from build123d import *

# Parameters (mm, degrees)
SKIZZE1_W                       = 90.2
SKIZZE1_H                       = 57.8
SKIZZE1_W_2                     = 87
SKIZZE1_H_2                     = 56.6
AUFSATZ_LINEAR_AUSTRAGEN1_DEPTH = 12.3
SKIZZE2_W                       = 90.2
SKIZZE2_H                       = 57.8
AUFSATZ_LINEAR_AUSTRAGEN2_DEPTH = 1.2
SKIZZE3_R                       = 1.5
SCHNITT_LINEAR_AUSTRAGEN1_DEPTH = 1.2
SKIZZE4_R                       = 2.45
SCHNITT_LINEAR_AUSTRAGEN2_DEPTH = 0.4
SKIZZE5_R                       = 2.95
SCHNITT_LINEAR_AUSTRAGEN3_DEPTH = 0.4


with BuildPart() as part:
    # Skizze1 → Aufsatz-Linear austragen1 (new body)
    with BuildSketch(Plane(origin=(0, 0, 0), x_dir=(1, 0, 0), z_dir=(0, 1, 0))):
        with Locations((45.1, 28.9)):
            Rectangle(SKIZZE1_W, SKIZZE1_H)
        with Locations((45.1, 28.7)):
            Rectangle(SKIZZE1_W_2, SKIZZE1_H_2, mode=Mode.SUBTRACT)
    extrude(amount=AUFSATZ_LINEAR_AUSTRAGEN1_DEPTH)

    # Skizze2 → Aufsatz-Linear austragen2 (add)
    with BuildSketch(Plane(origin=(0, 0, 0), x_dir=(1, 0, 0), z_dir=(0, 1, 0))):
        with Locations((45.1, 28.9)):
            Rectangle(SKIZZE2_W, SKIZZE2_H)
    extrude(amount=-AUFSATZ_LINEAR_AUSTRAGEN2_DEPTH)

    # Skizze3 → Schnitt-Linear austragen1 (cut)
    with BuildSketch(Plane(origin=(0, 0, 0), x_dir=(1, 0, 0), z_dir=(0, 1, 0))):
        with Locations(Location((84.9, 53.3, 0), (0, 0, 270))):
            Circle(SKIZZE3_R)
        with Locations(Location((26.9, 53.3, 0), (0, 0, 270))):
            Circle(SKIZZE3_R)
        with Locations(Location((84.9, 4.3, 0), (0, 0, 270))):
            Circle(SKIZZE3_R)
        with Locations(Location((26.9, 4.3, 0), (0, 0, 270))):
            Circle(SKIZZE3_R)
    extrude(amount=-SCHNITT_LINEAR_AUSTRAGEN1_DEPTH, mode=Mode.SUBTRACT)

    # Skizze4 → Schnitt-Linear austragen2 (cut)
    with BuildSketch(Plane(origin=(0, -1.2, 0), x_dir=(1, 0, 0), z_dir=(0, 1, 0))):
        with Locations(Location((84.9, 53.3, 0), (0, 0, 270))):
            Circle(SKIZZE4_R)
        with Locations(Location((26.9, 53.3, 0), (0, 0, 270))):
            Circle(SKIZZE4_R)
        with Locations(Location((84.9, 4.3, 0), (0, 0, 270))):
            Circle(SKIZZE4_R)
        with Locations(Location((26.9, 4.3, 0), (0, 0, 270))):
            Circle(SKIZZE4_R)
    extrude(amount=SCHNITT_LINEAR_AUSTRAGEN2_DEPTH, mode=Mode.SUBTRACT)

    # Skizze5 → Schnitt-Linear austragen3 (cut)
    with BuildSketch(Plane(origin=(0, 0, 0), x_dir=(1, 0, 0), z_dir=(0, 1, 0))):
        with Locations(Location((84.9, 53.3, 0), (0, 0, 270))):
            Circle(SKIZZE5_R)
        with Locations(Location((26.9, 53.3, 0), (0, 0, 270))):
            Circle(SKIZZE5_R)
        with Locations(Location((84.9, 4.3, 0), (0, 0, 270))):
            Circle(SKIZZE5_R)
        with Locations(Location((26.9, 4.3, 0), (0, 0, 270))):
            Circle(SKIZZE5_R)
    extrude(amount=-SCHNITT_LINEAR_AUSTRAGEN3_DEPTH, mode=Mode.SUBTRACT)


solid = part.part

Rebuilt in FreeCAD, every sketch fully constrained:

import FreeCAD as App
import Part
import Sketcher
from FreeCAD import Vector

doc = App.newDocument("Part")
params = doc.addObject("Spreadsheet::Sheet", "Params")
for row, (alias, value) in enumerate([
    ("sketch1_width", "87 mm"),
    ("sketch1_width2", "90.2 mm"),
    ("sketch1_height", "57.8 mm"),
    ("sketch1_height2", "56.6 mm"),
    ("pad1_length", "12.3 mm"),
    ("sketch2_width", "90.2 mm"),
    ("sketch2_height", "57.8 mm"),
    ("pad2_length", "1.2 mm"),
    ("sketch3_diameter", "3 mm"),
    ("pocket1_length", "1.2 mm"),
    ("sketch4_diameter", "4.9 mm"),
    ("pocket2_length", "0.4 mm"),
    ("sketch5_diameter", "5.9 mm"),
    ("pocket3_length", "0.4 mm"),
], start=1):
    params.set(f"A{row}", alias)
    params.set(f"B{row}", "=" + value)
    params.setAlias(f"B{row}", alias)

body = doc.addObject("PartDesign::Body", "Body")

# Sketch on XZ plane
sketch1 = doc.addObject("Sketcher::SketchObject", "Sketch")
body.addObject(sketch1)
sketch1.AttachmentSupport = (doc.XZ_Plane, [""])
sketch1.MapMode = "FlatFace"
sketch1.addGeometry(Part.LineSegment(Vector(0, -58, 0), Vector(0, 0, 0)), False)
sketch1.addGeometry(Part.LineSegment(Vector(0, 0, 0), Vector(90, 0, 0)), False)
sketch1.addGeometry(Part.LineSegment(Vector(90, 0, 0), Vector(90, -58, 0)), False)
sketch1.addGeometry(Part.LineSegment(Vector(90, -58, 0), Vector(0, -58, 0)), False)
sketch1.addGeometry(Part.LineSegment(Vector(89, 0, 0), Vector(2, 0, 0)), False)
sketch1.addGeometry(Part.LineSegment(Vector(2, 0, 0), Vector(2, -57, 0)), False)
sketch1.addGeometry(Part.LineSegment(Vector(2, -57, 0), Vector(89, -57, 0)), False)
sketch1.addGeometry(Part.LineSegment(Vector(89, -57, 0), Vector(89, 0, 0)), False)
sketch1.addConstraint(Sketcher.Constraint("Coincident", 0, 2, 1, 1))
sketch1.addConstraint(Sketcher.Constraint("Coincident", 1, 2, 2, 1))
sketch1.addConstraint(Sketcher.Constraint("Coincident", 2, 2, 3, 1))
sketch1.addConstraint(Sketcher.Constraint("Coincident", 3, 2, 0, 1))
sketch1.addConstraint(Sketcher.Constraint("Coincident", 4, 2, 5, 1))
sketch1.addConstraint(Sketcher.Constraint("Coincident", 5, 2, 6, 1))
sketch1.addConstraint(Sketcher.Constraint("Coincident", 6, 2, 7, 1))
sketch1.addConstraint(Sketcher.Constraint("Coincident", 7, 2, 4, 1))
sketch1.addConstraint(Sketcher.Constraint("Vertical", 0))
sketch1.addConstraint(Sketcher.Constraint("Horizontal", 1))
sketch1.addConstraint(Sketcher.Constraint("Vertical", 2))
sketch1.addConstraint(Sketcher.Constraint("Horizontal", 3))
sketch1.addConstraint(Sketcher.Constraint("Horizontal", 4))
sketch1.addConstraint(Sketcher.Constraint("Vertical", 5))
sketch1.addConstraint(Sketcher.Constraint("Horizontal", 6))
sketch1.addConstraint(Sketcher.Constraint("Vertical", 7))
sketch1.addConstraint(Sketcher.Constraint("Coincident", 0, 2, -1, 1))
sketch1.addConstraint(Sketcher.Constraint("DistanceX", 4, 2, 4, 1, 87.0))
sketch1.addConstraint(Sketcher.Constraint("DistanceX", 1, 1, 1, 2, 90.2))
sketch1.addConstraint(Sketcher.Constraint("DistanceY", 0, 1, 0, 2, 57.8))
sketch1.addConstraint(Sketcher.Constraint("DistanceY", 5, 2, 5, 1, 56.6))
sketch1.addConstraint(Sketcher.Constraint("DistanceY", 5, 2, -1, 1, 57.0))
sketch1.addConstraint(Sketcher.Constraint("DistanceX", -1, 1, 4, 2, 1.6))
sketch1.setExpression("Constraints[17]", "Params.sketch1_width")
sketch1.setExpression("Constraints[18]", "Params.sketch1_width2")
sketch1.setExpression("Constraints[19]", "Params.sketch1_height")
sketch1.setExpression("Constraints[20]", "Params.sketch1_height2")
pad1 = doc.addObject("PartDesign::Pad", "Pad")
body.addObject(pad1)
pad1.Profile = sketch1
pad1.setExpression("Length", "Params.pad1_length")
pad1.Reversed = True

# Sketch on XZ plane
sketch2 = doc.addObject("Sketcher::SketchObject", "Sketch001")
body.addObject(sketch2)
sketch2.AttachmentSupport = (doc.XZ_Plane, [""])
sketch2.MapMode = "FlatFace"
sketch2.addGeometry(Part.LineSegment(Vector(0, -58, 0), Vector(0, 0, 0)), False)
sketch2.addGeometry(Part.LineSegment(Vector(0, 0, 0), Vector(90, 0, 0)), False)
sketch2.addGeometry(Part.LineSegment(Vector(90, 0, 0), Vector(90, -58, 0)), False)
sketch2.addGeometry(Part.LineSegment(Vector(90, -58, 0), Vector(0, -58, 0)), False)
sketch2.addConstraint(Sketcher.Constraint("Coincident", 0, 2, 1, 1))
sketch2.addConstraint(Sketcher.Constraint("Coincident", 1, 2, 2, 1))
sketch2.addConstraint(Sketcher.Constraint("Coincident", 2, 2, 3, 1))
sketch2.addConstraint(Sketcher.Constraint("Coincident", 3, 2, 0, 1))
sketch2.addConstraint(Sketcher.Constraint("Vertical", 0))
sketch2.addConstraint(Sketcher.Constraint("Horizontal", 1))
sketch2.addConstraint(Sketcher.Constraint("Vertical", 2))
sketch2.addConstraint(Sketcher.Constraint("Horizontal", 3))
sketch2.addConstraint(Sketcher.Constraint("Coincident", 0, 2, -1, 1))
sketch2.addConstraint(Sketcher.Constraint("DistanceX", 1, 1, 1, 2, 90.2))
sketch2.addConstraint(Sketcher.Constraint("DistanceY", 0, 1, 0, 2, 57.8))
sketch2.setExpression("Constraints[9]", "Params.sketch2_width")
sketch2.setExpression("Constraints[10]", "Params.sketch2_height")
pad2 = doc.addObject("PartDesign::Pad", "Pad001")
body.addObject(pad2)
pad2.Profile = sketch2
pad2.setExpression("Length", "Params.pad2_length")

# Sketch on XZ plane
sketch3 = doc.addObject("Sketcher::SketchObject", "Sketch002")
body.addObject(sketch3)
sketch3.AttachmentSupport = (doc.XZ_Plane, [""])
sketch3.MapMode = "FlatFace"
sketch3.addGeometry(Part.Circle(Vector(84.9, -53.3, 0), Vector(0, 0, 1), 1.5), False)
sketch3.addGeometry(Part.Circle(Vector(26.9, -53.3, 0), Vector(0, 0, 1), 1.5), False)
sketch3.addGeometry(Part.Circle(Vector(84.9, -4.3, 0), Vector(0, 0, 1), 1.5), False)
sketch3.addGeometry(Part.Circle(Vector(26.9, -4.3, 0), Vector(0, 0, 1), 1.5), False)
sketch3.addConstraint(Sketcher.Constraint("Equal", 0, 1))
sketch3.addConstraint(Sketcher.Constraint("Equal", 1, 2))
sketch3.addConstraint(Sketcher.Constraint("Equal", 2, 3))
sketch3.addConstraint(Sketcher.Constraint("Horizontal", 0, 3, 1, 3))
sketch3.addConstraint(Sketcher.Constraint("Horizontal", 2, 3, 3, 3))
sketch3.addConstraint(Sketcher.Constraint("Vertical", 0, 3, 2, 3))
sketch3.addConstraint(Sketcher.Constraint("Vertical", 1, 3, 3, 3))
sketch3.addConstraint(Sketcher.Constraint("Diameter", 0, 3.0))
sketch3.addConstraint(Sketcher.Constraint("DistanceX", 1, 3, 0, 3, 58.0))
sketch3.addConstraint(Sketcher.Constraint("DistanceY", 0, 3, 2, 3, 49.0))
sketch3.addConstraint(Sketcher.Constraint("DistanceX", -1, 1, 0, 3, 84.9))
sketch3.addConstraint(Sketcher.Constraint("DistanceY", 0, 3, -1, 1, 53.3))
sketch3.setExpression("Constraints[7]", "Params.sketch3_diameter")
pocket1 = doc.addObject("PartDesign::Pocket", "Pocket")
body.addObject(pocket1)
pocket1.Profile = sketch3
pocket1.setExpression("Length", "Params.pocket1_length")
pocket1.Reversed = True

# Sketch on XZ plane
sketch4 = doc.addObject("Sketcher::SketchObject", "Sketch003")
body.addObject(sketch4)
sketch4.AttachmentSupport = (doc.XZ_Plane, [""])
sketch4.MapMode = "FlatFace"
sketch4.AttachmentOffset = App.Placement(Vector(0, 0, 1.2), App.Rotation())
sketch4.addGeometry(Part.Circle(Vector(84.9, -53.3, 0), Vector(0, 0, 1), 2.5), False)
sketch4.addGeometry(Part.Circle(Vector(26.9, -53.3, 0), Vector(0, 0, 1), 2.5), False)
sketch4.addGeometry(Part.Circle(Vector(84.9, -4.3, 0), Vector(0, 0, 1), 2.5), False)
sketch4.addGeometry(Part.Circle(Vector(26.9, -4.3, 0), Vector(0, 0, 1), 2.5), False)
sketch4.addConstraint(Sketcher.Constraint("Equal", 0, 1))
sketch4.addConstraint(Sketcher.Constraint("Equal", 1, 2))
sketch4.addConstraint(Sketcher.Constraint("Equal", 2, 3))
sketch4.addConstraint(Sketcher.Constraint("Horizontal", 0, 3, 1, 3))
sketch4.addConstraint(Sketcher.Constraint("Horizontal", 2, 3, 3, 3))
sketch4.addConstraint(Sketcher.Constraint("Vertical", 0, 3, 2, 3))
sketch4.addConstraint(Sketcher.Constraint("Vertical", 1, 3, 3, 3))
sketch4.addConstraint(Sketcher.Constraint("Diameter", 0, 4.9))
sketch4.addConstraint(Sketcher.Constraint("DistanceX", 1, 3, 0, 3, 58.0))
sketch4.addConstraint(Sketcher.Constraint("DistanceY", 0, 3, 2, 3, 49.0))
sketch4.addConstraint(Sketcher.Constraint("DistanceX", -1, 1, 0, 3, 84.9))
sketch4.addConstraint(Sketcher.Constraint("DistanceY", 0, 3, -1, 1, 53.3))
sketch4.setExpression("Constraints[7]", "Params.sketch4_diameter")
pocket2 = doc.addObject("PartDesign::Pocket", "Pocket001")
body.addObject(pocket2)
pocket2.Profile = sketch4
pocket2.setExpression("Length", "Params.pocket2_length")

# Sketch on XZ plane
sketch5 = doc.addObject("Sketcher::SketchObject", "Sketch004")
body.addObject(sketch5)
sketch5.AttachmentSupport = (doc.XZ_Plane, [""])
sketch5.MapMode = "FlatFace"
sketch5.addGeometry(Part.Circle(Vector(84.9, -53.3, 0), Vector(0, 0, 1), 3), False)
sketch5.addGeometry(Part.Circle(Vector(26.9, -53.3, 0), Vector(0, 0, 1), 3), False)
sketch5.addGeometry(Part.Circle(Vector(84.9, -4.3, 0), Vector(0, 0, 1), 3), False)
sketch5.addGeometry(Part.Circle(Vector(26.9, -4.3, 0), Vector(0, 0, 1), 3), False)
sketch5.addConstraint(Sketcher.Constraint("Equal", 0, 1))
sketch5.addConstraint(Sketcher.Constraint("Equal", 1, 2))
sketch5.addConstraint(Sketcher.Constraint("Equal", 2, 3))
sketch5.addConstraint(Sketcher.Constraint("Horizontal", 0, 3, 1, 3))
sketch5.addConstraint(Sketcher.Constraint("Horizontal", 2, 3, 3, 3))
sketch5.addConstraint(Sketcher.Constraint("Vertical", 0, 3, 2, 3))
sketch5.addConstraint(Sketcher.Constraint("Vertical", 1, 3, 3, 3))
sketch5.addConstraint(Sketcher.Constraint("Diameter", 0, 5.9))
sketch5.addConstraint(Sketcher.Constraint("DistanceX", 1, 3, 0, 3, 58.0))
sketch5.addConstraint(Sketcher.Constraint("DistanceY", 0, 3, 2, 3, 49.0))
sketch5.addConstraint(Sketcher.Constraint("DistanceX", -1, 1, 0, 3, 84.9))
sketch5.addConstraint(Sketcher.Constraint("DistanceY", 0, 3, -1, 1, 53.3))
sketch5.setExpression("Constraints[7]", "Params.sketch5_diameter")
pocket3 = doc.addObject("PartDesign::Pocket", "Pocket002")
body.addObject(pocket3)
pocket3.Profile = sketch5
pocket3.setExpression("Length", "Params.pocket3_length")
pocket3.Reversed = True

doc.recompute()
